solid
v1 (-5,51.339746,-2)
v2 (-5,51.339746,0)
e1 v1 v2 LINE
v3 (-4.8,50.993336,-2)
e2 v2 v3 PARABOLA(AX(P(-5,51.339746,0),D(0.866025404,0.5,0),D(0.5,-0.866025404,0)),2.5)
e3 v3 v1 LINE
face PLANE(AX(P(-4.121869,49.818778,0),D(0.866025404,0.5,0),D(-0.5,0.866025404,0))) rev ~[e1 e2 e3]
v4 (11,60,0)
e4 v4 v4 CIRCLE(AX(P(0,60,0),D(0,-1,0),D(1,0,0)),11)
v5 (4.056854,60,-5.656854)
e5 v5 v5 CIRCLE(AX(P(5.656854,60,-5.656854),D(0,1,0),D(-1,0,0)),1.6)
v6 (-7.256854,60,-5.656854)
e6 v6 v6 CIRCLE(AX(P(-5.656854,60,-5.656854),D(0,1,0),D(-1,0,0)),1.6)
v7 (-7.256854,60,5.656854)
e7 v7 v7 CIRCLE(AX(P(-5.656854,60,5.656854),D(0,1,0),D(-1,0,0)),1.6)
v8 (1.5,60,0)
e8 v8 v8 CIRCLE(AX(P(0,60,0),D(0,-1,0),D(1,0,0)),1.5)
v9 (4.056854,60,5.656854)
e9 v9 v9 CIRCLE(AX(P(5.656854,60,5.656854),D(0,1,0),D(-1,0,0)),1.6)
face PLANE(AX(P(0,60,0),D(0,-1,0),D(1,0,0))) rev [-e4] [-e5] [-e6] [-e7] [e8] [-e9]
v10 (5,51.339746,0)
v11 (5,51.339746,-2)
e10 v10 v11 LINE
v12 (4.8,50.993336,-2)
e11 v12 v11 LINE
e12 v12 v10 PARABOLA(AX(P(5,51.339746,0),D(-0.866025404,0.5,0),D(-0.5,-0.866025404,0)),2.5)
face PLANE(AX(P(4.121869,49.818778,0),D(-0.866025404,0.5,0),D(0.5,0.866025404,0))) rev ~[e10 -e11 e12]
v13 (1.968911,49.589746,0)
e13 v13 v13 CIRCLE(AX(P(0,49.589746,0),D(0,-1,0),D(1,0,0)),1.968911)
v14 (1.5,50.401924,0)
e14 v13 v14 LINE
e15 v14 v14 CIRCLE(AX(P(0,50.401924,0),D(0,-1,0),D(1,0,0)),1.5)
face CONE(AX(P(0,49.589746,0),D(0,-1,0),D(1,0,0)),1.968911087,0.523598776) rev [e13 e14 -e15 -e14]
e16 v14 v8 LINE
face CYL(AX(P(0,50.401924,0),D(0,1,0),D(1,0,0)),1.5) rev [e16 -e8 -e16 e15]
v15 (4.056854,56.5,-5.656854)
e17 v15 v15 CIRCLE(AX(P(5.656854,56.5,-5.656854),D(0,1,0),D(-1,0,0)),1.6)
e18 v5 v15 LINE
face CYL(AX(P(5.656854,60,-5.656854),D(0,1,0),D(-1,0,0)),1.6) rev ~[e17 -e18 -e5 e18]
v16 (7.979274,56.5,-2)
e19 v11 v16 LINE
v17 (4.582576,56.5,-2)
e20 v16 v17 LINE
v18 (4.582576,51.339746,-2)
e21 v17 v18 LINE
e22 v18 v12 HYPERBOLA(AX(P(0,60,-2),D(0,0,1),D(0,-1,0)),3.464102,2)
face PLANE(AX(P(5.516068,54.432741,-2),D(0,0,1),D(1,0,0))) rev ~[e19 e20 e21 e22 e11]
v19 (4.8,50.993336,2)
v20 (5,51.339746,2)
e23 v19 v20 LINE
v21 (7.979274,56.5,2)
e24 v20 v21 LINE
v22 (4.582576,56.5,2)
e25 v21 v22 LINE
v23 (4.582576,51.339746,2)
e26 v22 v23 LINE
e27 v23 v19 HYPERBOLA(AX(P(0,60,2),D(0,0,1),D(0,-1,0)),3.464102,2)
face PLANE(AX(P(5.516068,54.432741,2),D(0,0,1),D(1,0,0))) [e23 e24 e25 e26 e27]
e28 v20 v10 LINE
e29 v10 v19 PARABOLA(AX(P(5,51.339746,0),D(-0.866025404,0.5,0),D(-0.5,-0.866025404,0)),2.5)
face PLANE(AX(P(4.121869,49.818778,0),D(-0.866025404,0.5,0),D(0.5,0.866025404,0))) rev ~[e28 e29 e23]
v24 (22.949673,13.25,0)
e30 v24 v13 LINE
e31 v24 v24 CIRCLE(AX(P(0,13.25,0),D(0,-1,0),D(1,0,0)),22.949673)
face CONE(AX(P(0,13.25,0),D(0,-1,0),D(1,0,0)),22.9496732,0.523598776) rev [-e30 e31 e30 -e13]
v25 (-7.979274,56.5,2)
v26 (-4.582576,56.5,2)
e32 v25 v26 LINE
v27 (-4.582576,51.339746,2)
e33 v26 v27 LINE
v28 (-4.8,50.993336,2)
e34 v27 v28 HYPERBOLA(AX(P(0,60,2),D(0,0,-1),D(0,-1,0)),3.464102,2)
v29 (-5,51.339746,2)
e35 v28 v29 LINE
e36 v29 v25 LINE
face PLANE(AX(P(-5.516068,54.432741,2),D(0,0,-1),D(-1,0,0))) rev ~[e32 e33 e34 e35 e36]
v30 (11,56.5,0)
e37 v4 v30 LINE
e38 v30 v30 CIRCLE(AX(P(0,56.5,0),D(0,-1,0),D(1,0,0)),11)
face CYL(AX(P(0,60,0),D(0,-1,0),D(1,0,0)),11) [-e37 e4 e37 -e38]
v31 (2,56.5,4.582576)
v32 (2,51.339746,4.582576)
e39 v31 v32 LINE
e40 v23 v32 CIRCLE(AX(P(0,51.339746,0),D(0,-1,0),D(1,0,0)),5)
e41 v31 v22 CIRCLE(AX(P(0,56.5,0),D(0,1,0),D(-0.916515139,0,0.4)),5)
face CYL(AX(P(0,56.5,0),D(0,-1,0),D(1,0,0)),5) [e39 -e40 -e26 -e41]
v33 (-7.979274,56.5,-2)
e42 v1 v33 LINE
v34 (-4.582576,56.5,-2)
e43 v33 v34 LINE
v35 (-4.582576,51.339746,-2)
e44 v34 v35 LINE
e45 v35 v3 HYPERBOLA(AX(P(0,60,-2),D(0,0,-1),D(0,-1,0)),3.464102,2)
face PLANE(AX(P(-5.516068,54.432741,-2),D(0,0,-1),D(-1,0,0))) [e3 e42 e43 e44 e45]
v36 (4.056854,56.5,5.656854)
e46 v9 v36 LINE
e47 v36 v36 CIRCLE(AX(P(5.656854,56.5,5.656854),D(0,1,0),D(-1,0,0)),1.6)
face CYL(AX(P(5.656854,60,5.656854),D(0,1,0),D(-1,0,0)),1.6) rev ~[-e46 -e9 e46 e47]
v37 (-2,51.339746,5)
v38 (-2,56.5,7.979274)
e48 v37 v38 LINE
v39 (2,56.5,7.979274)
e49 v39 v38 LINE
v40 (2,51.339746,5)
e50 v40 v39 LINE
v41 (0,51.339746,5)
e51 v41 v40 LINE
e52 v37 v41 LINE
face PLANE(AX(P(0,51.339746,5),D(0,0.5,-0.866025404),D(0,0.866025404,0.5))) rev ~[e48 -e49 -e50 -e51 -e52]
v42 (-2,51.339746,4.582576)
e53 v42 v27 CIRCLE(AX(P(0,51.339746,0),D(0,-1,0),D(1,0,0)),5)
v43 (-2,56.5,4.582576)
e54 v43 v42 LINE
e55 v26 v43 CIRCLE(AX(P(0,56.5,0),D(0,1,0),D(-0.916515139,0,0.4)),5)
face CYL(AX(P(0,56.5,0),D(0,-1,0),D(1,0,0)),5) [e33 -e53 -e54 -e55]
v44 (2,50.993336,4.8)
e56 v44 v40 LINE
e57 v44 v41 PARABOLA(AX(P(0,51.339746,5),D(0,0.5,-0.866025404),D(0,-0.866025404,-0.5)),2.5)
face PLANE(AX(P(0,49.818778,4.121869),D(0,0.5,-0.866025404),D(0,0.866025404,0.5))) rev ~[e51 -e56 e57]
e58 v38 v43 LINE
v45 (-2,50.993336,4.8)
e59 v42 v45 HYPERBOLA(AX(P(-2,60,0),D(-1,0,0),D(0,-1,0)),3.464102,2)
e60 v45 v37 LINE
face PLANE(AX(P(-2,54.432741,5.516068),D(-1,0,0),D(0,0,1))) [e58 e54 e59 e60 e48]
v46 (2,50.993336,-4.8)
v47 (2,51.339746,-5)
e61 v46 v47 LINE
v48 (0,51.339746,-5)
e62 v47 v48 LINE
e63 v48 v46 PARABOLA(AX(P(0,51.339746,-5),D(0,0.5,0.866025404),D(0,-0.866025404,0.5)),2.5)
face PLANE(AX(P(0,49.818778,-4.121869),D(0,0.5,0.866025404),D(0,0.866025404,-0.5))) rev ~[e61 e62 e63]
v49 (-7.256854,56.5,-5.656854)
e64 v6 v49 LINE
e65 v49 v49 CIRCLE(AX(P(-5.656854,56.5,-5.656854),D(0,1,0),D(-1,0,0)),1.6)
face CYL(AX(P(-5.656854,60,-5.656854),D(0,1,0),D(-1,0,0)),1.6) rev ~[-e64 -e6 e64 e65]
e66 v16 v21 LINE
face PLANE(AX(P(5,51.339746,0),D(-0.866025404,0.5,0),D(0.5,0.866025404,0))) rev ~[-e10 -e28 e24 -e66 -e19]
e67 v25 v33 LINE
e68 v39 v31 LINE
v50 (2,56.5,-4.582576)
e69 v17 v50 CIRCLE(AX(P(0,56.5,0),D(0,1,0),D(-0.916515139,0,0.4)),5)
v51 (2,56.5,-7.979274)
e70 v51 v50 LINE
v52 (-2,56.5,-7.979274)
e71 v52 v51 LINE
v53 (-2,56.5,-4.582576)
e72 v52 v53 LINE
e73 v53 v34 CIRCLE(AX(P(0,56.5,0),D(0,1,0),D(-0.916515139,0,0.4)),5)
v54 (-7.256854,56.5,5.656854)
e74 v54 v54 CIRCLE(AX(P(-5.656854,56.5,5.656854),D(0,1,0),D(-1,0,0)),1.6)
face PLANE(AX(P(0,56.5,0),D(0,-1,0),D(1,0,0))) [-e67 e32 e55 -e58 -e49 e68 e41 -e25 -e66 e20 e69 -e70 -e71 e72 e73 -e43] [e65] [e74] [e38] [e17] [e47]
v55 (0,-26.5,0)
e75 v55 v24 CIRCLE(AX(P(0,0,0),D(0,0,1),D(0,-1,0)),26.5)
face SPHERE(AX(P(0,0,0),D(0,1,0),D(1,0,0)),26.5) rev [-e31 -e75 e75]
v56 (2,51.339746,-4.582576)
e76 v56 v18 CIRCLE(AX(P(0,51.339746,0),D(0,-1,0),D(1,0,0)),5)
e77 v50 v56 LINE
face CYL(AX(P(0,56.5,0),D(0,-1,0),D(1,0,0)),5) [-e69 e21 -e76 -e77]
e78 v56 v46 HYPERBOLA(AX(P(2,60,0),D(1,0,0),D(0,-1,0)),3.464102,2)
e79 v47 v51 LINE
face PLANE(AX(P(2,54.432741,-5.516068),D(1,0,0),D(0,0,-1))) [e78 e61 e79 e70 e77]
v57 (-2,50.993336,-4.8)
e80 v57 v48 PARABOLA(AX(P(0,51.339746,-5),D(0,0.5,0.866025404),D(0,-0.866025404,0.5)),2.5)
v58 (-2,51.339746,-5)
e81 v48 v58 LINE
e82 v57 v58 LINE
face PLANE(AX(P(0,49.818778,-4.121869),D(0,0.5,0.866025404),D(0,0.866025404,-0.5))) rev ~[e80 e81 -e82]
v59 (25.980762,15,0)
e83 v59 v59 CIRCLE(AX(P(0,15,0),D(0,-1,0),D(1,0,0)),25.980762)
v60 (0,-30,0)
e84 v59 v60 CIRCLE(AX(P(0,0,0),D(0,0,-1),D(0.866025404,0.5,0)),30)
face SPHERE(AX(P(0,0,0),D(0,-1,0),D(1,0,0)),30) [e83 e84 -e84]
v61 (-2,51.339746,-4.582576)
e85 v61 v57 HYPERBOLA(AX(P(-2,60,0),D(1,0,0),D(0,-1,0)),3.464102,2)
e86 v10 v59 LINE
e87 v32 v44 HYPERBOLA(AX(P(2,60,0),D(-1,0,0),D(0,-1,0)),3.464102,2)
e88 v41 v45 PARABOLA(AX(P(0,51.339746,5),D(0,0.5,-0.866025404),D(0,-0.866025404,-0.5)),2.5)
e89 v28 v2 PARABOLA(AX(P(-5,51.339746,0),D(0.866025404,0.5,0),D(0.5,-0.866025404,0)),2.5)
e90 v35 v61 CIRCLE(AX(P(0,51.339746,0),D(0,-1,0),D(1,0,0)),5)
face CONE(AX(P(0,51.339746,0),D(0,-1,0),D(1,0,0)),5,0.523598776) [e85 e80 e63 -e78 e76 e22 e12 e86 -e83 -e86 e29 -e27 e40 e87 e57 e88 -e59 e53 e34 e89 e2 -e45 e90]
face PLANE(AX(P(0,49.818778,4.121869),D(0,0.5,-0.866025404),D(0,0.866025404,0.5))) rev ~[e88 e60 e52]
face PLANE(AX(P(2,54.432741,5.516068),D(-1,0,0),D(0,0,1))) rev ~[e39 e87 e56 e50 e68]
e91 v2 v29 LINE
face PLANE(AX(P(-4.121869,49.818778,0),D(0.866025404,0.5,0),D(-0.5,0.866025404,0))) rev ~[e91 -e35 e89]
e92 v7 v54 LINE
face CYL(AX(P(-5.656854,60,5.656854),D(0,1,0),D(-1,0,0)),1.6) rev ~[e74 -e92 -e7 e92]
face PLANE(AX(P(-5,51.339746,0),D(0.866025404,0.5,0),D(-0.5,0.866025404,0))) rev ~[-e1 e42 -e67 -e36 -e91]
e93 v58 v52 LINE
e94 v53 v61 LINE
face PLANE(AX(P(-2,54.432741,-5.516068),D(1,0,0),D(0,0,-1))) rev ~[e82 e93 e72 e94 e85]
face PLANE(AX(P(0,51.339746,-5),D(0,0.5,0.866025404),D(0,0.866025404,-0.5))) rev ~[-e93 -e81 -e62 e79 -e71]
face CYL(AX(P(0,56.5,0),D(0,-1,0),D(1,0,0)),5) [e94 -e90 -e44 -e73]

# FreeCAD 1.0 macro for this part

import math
import FreeCAD as App
import Part
import Sketcher
from FreeCAD import Vector
Q = App.Units.Quantity


def add_polygon(sketch, points):
    """Adds a closed chain of lines whose ends are joined by coincident constraints."""
    first, n = sketch.GeometryCount, len(points)
    for a, b in zip(points, points[1:] + points[:1]):
        sketch.addGeometry(Part.LineSegment(App.Vector(*a, 0), App.Vector(*b, 0)), False)
    for i in range(n):
        sketch.addConstraint(Sketcher.Constraint("Coincident", first + i, 2, first + (i + 1) % n, 1))

doc = App.newDocument("Part")
body = doc.addObject("PartDesign::Body", "Body")

# Sketch on XY plane
sketch1 = body.newObject("Sketcher::SketchObject", "Sketch")
sketch1.AttachmentSupport = (doc.getObject("XY_Plane"), [""])
sketch1.MapMode = "FlatFace"
sketch1.addGeometry([
    Part.LineSegment(Vector(26, 15, 0), Vector(5, 51.3, 0)),  # 0
    Part.LineSegment(Vector(5, 51.3, 0), Vector(5, 56.5, 0)),  # 1
    Part.LineSegment(Vector(5, 56.5, 0), Vector(11, 56.5, 0)),  # 2
    Part.LineSegment(Vector(11, 56.5, 0), Vector(11, 60, 0)),  # 3
    Part.LineSegment(Vector(11, 60, 0), Vector(1.5, 60, 0)),  # 4
    Part.LineSegment(Vector(1.5, 60, 0), Vector(1.5, 50.4, 0)),  # 5
    Part.LineSegment(Vector(1.5, 50.4, 0), Vector(2, 49.6, 0)),  # 6
    Part.LineSegment(Vector(2, 49.6, 0), Vector(22.9, 13.2, 0)),  # 7
    Part.ArcOfCircle(Part.Circle(Vector(0, 0, 0), Vector(0, 0, 1), 26.5), math.radians(-90), math.radians(30)),  # 8
    Part.LineSegment(Vector(0, -26.5, 0), Vector(0, -30, 0)),  # 9
    Part.ArcOfCircle(Part.Circle(Vector(0, 0, 0), Vector(0, 0, 1), 30), math.radians(-90), math.radians(30)),  # 10
], False)
sketch1.addConstraint([
    Sketcher.Constraint("Coincident", 0, 2, 1, 1),
    Sketcher.Constraint("Coincident", 1, 2, 2, 1),
    Sketcher.Constraint("Coincident", 2, 2, 3, 1),
    Sketcher.Constraint("Coincident", 3, 2, 4, 1),
    Sketcher.Constraint("Coincident", 4, 2, 5, 1),
    Sketcher.Constraint("Coincident", 5, 2, 6, 1),
    Sketcher.Constraint("Coincident", 6, 2, 7, 1),
    Sketcher.Constraint("Tangent", 7, 2, 8, 2),
    Sketcher.Constraint("Coincident", 8, 1, 9, 1),
    Sketcher.Constraint("Coincident", 9, 2, 10, 1),
    Sketcher.Constraint("Tangent", 10, 2, 0, 1),
    Sketcher.Constraint("Vertical", 1),
    Sketcher.Constraint("Horizontal", 2),
    Sketcher.Constraint("Vertical", 3),
    Sketcher.Constraint("Horizontal", 4),
    Sketcher.Constraint("Vertical", 5),
    Sketcher.Constraint("Vertical", 9),
    Sketcher.Constraint("Coincident", 8, 3, -1, 1),
    Sketcher.Constraint("Coincident", 10, 3, -1, 1),
    Sketcher.Constraint("PointOnObject", 8, 1, -2),
    Sketcher.Constraint("Parallel", 0, 6),
    Sketcher.Constraint("Parallel", 6, 7),
    Sketcher.Constraint("Equal", 3, 9),
    Sketcher.Constraint("Equal", 0, 7),
    Sketcher.Constraint("Radius", 10, Q("30 mm")),
    Sketcher.Constraint("Radius", 8, Q("26.5 mm")),
    Sketcher.Constraint("DistanceX", 2, 1, 2, 2, Q("6 mm")),
    Sketcher.Constraint("Angle", 0, Q("120 deg")),
    Sketcher.Constraint("DistanceX", 4, 2, 4, 1, Q("9.5 mm")),
    Sketcher.Constraint("DistanceX", -1, 1, 0, 2, Q("5 mm")),
    Sketcher.Constraint("DistanceY", -1, 1, 3, 2, Q("60 mm")),
])
revolution = body.newObject("PartDesign::Revolution", "Revolution")
revolution.Profile = sketch1
revolution.ReferenceAxis = (sketch1, ["V_Axis"])
revolution.Angle = 360

# Sketch on XZ plane
sketch2 = body.newObject("Sketcher::SketchObject", "Sketch001")
sketch2.AttachmentSupport = (doc.getObject("XZ_Plane"), [""])
sketch2.MapMode = "FlatFace"
sketch2.AttachmentOffset = App.Placement(Vector(0, 0, -60), App.Rotation())
sketch2.addGeometry(Part.Circle(Vector(-5.7, -5.7, 0), Vector(0, 0, 1), 1.6), False)
sketch2.addConstraint([
    Sketcher.Constraint("Diameter", 0, Q("3.2 mm")),
    Sketcher.Constraint("DistanceX", 0, 3, -1, 1, Q("5.656854 mm")),
    Sketcher.Constraint("DistanceY", 0, 3, -1, 1, Q("5.656854 mm")),
])
pocket1 = body.newObject("PartDesign::Pocket", "Pocket")
pocket1.Profile = sketch2
pocket1.Type = "UpToFirst"
pocket1.Reversed = True

# Sketch on XZ plane
sketch3 = body.newObject("Sketcher::SketchObject", "Sketch002")
sketch3.AttachmentSupport = (doc.getObject("XZ_Plane"), [""])
sketch3.MapMode = "FlatFace"
sketch3.AttachmentOffset = App.Placement(Vector(0, 0, -60), App.Rotation())
sketch3.addGeometry(Part.Circle(Vector(5.7, -5.7, 0), Vector(0, 0, 1), 1.6), False)
sketch3.addConstraint([
    Sketcher.Constraint("Diameter", 0, Q("3.2 mm")),
    Sketcher.Constraint("DistanceX", -1, 1, 0, 3, Q("5.656854 mm")),
    Sketcher.Constraint("DistanceY", 0, 3, -1, 1, Q("5.656854 mm")),
])
pocket2 = body.newObject("PartDesign::Pocket", "Pocket001")
pocket2.Profile = sketch3
pocket2.Type = "UpToFirst"
pocket2.Reversed = True

# Sketch on XZ plane
sketch4 = body.newObject("Sketcher::SketchObject", "Sketch003")
sketch4.AttachmentSupport = (doc.getObject("XZ_Plane"), [""])
sketch4.MapMode = "FlatFace"
sketch4.AttachmentOffset = App.Placement(Vector(0, 0, -60), App.Rotation())
sketch4.addGeometry(Part.Circle(Vector(5.7, 5.7, 0), Vector(0, 0, 1), 1.6), False)
sketch4.addConstraint([
    Sketcher.Constraint("Diameter", 0, Q("3.2 mm")),
    Sketcher.Constraint("DistanceX", -1, 1, 0, 3, Q("5.656854 mm")),
    Sketcher.Constraint("DistanceY", -1, 1, 0, 3, Q("5.656854 mm")),
])
pocket3 = body.newObject("PartDesign::Pocket", "Pocket002")
pocket3.Profile = sketch4
pocket3.Type = "UpToFirst"
pocket3.Reversed = True

# Sketch on XZ plane
sketch5 = body.newObject("Sketcher::SketchObject", "Sketch004")
sketch5.AttachmentSupport = (doc.getObject("XZ_Plane"), [""])
sketch5.MapMode = "FlatFace"
sketch5.AttachmentOffset = App.Placement(Vector(0, 0, -60), App.Rotation())
sketch5.addGeometry(Part.Circle(Vector(-5.7, 5.7, 0), Vector(0, 0, 1), 1.6), False)
sketch5.addConstraint([
    Sketcher.Constraint("Diameter", 0, Q("3.2 mm")),
    Sketcher.Constraint("DistanceX", 0, 3, -1, 1, Q("5.656854 mm")),
    Sketcher.Constraint("DistanceY", -1, 1, 0, 3, Q("5.656854 mm")),
])
pocket4 = body.newObject("PartDesign::Pocket", "Pocket003")
pocket4.Profile = sketch5
pocket4.Type = "UpToFirst"
pocket4.Reversed = True

# Sketch on XY plane
sketch6 = body.newObject("Sketcher::SketchObject", "Sketch005")
sketch6.AttachmentSupport = (doc.getObject("XY_Plane"), [""])
sketch6.MapMode = "FlatFace"
add_polygon(sketch6, [(-8, 56.5), (-5, 51.3), (-4.1, 49.8), (-4.1, 57.4), (-8.5, 57.4)])  # lines 0-4
sketch6.addConstraint([
    Sketcher.Constraint("Vertical", 2),
    Sketcher.Constraint("Horizontal", 3),
    Sketcher.Constraint("Parallel", 0, 1),
    Sketcher.Constraint("Parallel", 1, 4),
    Sketcher.Constraint("Angle", 0, Q("-60 deg")),
    Sketcher.Constraint("DistanceX", 0, 2, -1, 1, Q("5 mm")),
    Sketcher.Constraint("DistanceY", -1, 1, 4, 2, Q("56.5 mm")),
    Sketcher.Constraint("DistanceX", 3, 2, 3, 1, Q("4.39828 mm")),
    Sketcher.Constraint("Distance", 0, Q("5.958548 mm")),
    Sketcher.Constraint("Distance", 4, Q("1.081749 mm")),
])
pad1 = body.newObject("PartDesign::Pad", "Pad")
pad1.Profile = sketch6
pad1.Length = 4
pad1.Midplane = True
doc.recompute()

polarpattern = body.newObject("PartDesign::PolarPattern", "PolarPattern")
polarpattern.Originals = [pad1]
polarpattern.Axis = (doc.getObject("Y_Axis"), [""])
polarpattern.Angle = 360
polarpattern.Occurrences = 4
body.Tip = polarpattern

doc.recompute()
